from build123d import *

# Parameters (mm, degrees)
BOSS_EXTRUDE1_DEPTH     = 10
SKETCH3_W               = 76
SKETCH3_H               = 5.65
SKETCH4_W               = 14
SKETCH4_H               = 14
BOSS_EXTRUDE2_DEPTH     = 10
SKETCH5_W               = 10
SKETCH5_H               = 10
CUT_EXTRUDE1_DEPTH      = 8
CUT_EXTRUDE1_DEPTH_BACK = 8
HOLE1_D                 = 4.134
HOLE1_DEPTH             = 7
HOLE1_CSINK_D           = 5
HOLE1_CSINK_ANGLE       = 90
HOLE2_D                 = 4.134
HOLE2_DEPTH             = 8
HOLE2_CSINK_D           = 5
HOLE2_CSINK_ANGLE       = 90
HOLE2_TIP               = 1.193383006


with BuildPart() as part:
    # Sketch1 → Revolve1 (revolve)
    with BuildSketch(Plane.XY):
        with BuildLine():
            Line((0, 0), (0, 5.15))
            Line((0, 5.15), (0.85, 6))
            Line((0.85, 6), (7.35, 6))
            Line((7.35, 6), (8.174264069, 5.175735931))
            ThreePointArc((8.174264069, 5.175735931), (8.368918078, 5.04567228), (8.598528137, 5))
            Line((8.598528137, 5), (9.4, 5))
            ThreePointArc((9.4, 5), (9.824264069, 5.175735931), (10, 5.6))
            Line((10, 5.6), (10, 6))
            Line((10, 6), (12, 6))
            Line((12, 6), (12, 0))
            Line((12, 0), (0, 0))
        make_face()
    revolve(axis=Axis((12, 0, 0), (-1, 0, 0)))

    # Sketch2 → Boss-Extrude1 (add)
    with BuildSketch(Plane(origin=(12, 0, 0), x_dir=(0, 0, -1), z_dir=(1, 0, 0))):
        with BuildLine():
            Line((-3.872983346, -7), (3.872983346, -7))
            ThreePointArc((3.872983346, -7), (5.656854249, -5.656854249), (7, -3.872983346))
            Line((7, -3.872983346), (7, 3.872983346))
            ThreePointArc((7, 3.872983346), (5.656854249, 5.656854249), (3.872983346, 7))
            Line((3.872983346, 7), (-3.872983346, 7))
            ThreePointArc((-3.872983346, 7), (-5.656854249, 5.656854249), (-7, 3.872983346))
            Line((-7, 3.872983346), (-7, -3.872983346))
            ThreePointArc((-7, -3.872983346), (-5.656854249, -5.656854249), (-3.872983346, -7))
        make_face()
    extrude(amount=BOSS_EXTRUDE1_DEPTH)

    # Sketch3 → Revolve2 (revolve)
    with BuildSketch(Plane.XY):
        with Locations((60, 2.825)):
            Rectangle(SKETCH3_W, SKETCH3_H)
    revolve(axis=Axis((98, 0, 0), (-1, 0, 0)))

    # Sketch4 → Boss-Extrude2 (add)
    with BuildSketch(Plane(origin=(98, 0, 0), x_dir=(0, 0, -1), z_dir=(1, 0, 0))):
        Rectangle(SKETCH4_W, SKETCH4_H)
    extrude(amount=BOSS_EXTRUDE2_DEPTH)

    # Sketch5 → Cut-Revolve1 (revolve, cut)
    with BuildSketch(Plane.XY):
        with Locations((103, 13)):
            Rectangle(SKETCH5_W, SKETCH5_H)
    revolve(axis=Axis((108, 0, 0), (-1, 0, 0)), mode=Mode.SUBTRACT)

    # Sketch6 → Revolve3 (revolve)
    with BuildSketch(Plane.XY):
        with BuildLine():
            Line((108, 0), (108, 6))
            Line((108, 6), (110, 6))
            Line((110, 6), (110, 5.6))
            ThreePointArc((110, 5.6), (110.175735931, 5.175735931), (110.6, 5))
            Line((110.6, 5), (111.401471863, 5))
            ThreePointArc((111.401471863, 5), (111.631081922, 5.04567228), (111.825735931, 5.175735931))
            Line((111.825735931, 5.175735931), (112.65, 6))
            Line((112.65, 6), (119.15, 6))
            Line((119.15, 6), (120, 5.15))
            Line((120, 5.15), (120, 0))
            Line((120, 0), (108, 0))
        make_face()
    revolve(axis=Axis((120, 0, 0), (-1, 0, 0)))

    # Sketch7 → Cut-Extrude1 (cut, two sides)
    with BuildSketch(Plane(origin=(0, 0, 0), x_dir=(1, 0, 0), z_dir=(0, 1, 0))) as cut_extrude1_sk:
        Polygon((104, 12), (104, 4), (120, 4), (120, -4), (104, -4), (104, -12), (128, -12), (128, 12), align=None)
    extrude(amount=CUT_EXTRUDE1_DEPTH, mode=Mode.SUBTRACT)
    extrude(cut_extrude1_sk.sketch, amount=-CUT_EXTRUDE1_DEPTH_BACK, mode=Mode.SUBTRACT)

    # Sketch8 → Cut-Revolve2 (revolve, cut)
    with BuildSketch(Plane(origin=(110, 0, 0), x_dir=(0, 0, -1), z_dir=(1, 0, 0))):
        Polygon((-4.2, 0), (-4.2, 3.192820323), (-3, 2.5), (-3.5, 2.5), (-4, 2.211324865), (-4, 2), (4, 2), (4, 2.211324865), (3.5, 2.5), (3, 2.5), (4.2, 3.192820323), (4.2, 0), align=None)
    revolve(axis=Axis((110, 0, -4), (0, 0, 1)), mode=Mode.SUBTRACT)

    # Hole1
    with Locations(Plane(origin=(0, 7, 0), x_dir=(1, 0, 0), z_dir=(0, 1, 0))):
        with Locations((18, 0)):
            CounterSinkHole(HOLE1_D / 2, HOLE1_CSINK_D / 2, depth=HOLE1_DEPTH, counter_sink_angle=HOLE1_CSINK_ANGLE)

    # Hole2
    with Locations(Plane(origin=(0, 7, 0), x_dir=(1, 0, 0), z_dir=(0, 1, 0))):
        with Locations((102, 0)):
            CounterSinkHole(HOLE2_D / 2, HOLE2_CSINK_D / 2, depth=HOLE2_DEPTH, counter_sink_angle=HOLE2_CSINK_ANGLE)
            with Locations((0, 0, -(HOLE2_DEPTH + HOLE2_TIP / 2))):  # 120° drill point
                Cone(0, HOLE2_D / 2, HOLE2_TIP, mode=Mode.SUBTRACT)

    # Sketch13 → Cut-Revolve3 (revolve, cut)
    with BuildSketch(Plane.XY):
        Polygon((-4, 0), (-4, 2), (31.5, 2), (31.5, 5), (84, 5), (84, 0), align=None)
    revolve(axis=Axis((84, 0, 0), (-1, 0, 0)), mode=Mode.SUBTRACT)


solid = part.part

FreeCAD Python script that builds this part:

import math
import FreeCAD as App
import Part
import Sketcher
from FreeCAD import Vector
Q = App.Units.Quantity


def add_polygon(sketch, points):
    """Adds a closed chain of lines whose ends are joined by coincident constraints."""
    first, n = sketch.GeometryCount, len(points)
    for a, b in zip(points, points[1:] + points[:1]):
        sketch.addGeometry(Part.LineSegment(App.Vector(*a, 0), App.Vector(*b, 0)), False)
    for i in range(n):
        sketch.addConstraint(Sketcher.Constraint("Coincident", first + i, 2, first + (i + 1) % n, 1))

doc = App.newDocument("Part")
body = doc.addObject("PartDesign::Body", "Body")

# Sketch on XY plane
sketch1 = body.newObject("Sketcher::SketchObject", "Sketch")
sketch1.AttachmentSupport = (doc.getObject("XY_Plane"), [""])
sketch1.MapMode = "FlatFace"
sketch1.addGeometry([
    Part.LineSegment(Vector(0, 5.15, 0), Vector(0, 0, 0)),  # 0
    Part.LineSegment(Vector(0, 0, 0), Vector(12, 0, 0)),  # 1
    Part.LineSegment(Vector(12, 0, 0), Vector(12, 6, 0)),  # 2
    Part.LineSegment(Vector(12, 6, 0), Vector(10, 6, 0)),  # 3
    Part.LineSegment(Vector(10, 6, 0), Vector(10, 5.6, 0)),  # 4
    Part.ArcOfCircle(Part.Circle(Vector(9.4, 5.6, 0), Vector(0, 0, 1), 0.6), math.radians(-90), math.radians(0)),  # 5
    Part.LineSegment(Vector(9.4, 5, 0), Vector(8.598528, 5, 0)),  # 6
    Part.ArcOfCircle(Part.Circle(Vector(8.598528, 5.6, 0), Vector(0, 0, 1), 0.6), math.radians(-135), math.radians(-90)),  # 7
    Part.LineSegment(Vector(8.174264, 5.175736, 0), Vector(7.35, 6, 0)),  # 8
    Part.LineSegment(Vector(7.35, 6, 0), Vector(0.85, 6, 0)),  # 9
    Part.LineSegment(Vector(0.85, 6, 0), Vector(0, 5.15, 0)),  # 10
], False)
sketch1.addConstraint([
    Sketcher.Constraint("Coincident", 0, 2, 1, 1),
    Sketcher.Constraint("Coincident", 1, 2, 2, 1),
    Sketcher.Constraint("Coincident", 2, 2, 3, 1),
    Sketcher.Constraint("Coincident", 3, 2, 4, 1),
    Sketcher.Constraint("Tangent", 4, 2, 5, 2),
    Sketcher.Constraint("Tangent", 5, 1, 6, 1),
    Sketcher.Constraint("Tangent", 6, 2, 7, 2),
    Sketcher.Constraint("Tangent", 7, 1, 8, 1),
    Sketcher.Constraint("Coincident", 8, 2, 9, 1),
    Sketcher.Constraint("Coincident", 9, 2, 10, 1),
    Sketcher.Constraint("Coincident", 10, 2, 0, 1),
    Sketcher.Constraint("Vertical", 0),
    Sketcher.Constraint("Horizontal", 1),
    Sketcher.Constraint("Vertical", 2),
    Sketcher.Constraint("Horizontal", 3),
    Sketcher.Constraint("Vertical", 4),
    Sketcher.Constraint("Horizontal", 6),
    Sketcher.Constraint("Horizontal", 9),
    Sketcher.Constraint("Coincident", 0, 2, -1, 1),
    Sketcher.Constraint("Equal", 5, 7),
    Sketcher.Constraint("Perpendicular", 8, 10),
    Sketcher.Constraint("Horizontal", 3, 2, 8, 2),
    Sketcher.Constraint("Radius", 5, Q("0.6 mm")),
    Sketcher.Constraint("DistanceX", 1, 1, 1, 2, Q("12 mm")),
    Sketcher.Constraint("DistanceX", 3, 2, 3, 1, Q("2 mm")),
    Sketcher.Constraint("DistanceY", 2, 1, 2, 2, Q("6 mm")),
    Sketcher.Constraint("Angle", 8, Q("135 deg")),
    Sketcher.Constraint("DistanceX", 9, 2, 9, 1, Q("6.5 mm")),
    Sketcher.Constraint("DistanceY", 4, 2, 4, 1, Q("0.4 mm")),
    Sketcher.Constraint("DistanceY", 0, 2, 0, 1, Q("5.15 mm")),
])
revolution = body.newObject("PartDesign::Revolution", "Revolution")
revolution.Profile = sketch1
revolution.ReferenceAxis = (sketch1, ["H_Axis"])
revolution.Angle = 360

# Sketch on YZ plane
sketch2 = body.newObject("Sketcher::SketchObject", "Sketch001")
sketch2.AttachmentSupport = (doc.getObject("YZ_Plane"), [""])
sketch2.MapMode = "FlatFace"
sketch2.AttachmentOffset = App.Placement(Vector(0, 0, 12), App.Rotation())
sketch2.addGeometry([
    Part.LineSegment(Vector(-7, 3.872983, 0), Vector(-7, -3.872983, 0)),  # 0
    Part.ArcOfCircle(Part.Circle(Vector(0, 0, 0), Vector(0, 0, 1), 8), math.radians(-151.044976), math.radians(-118.955024)),  # 1
    Part.LineSegment(Vector(-3.872983, -7, 0), Vector(3.872983, -7, 0)),  # 2
    Part.ArcOfCircle(Part.Circle(Vector(0, 0, 0), Vector(0, 0, 1), 8), math.radians(-61.044976), math.radians(-28.955024)),  # 3
    Part.LineSegment(Vector(7, -3.872983, 0), Vector(7, 3.872983, 0)),  # 4
    Part.ArcOfCircle(Part.Circle(Vector(0, 0, 0), Vector(0, 0, 1), 8), math.radians(28.955024), math.radians(61.044976)),  # 5
    Part.LineSegment(Vector(3.872983, 7, 0), Vector(-3.872983, 7, 0)),  # 6
    Part.ArcOfCircle(Part.Circle(Vector(0, 0, 0), Vector(0, 0, 1), 8), math.radians(118.955024), math.radians(151.044976)),  # 7
], False)
sketch2.addConstraint([
    Sketcher.Constraint("Coincident", 0, 2, 1, 1),
    Sketcher.Constraint("Coincident", 1, 2, 2, 1),
    Sketcher.Constraint("Coincident", 2, 2, 3, 1),
    Sketcher.Constraint("Coincident", 3, 2, 4, 1),
    Sketcher.Constraint("Coincident", 4, 2, 5, 1),
    Sketcher.Constraint("Coincident", 5, 2, 6, 1),
    Sketcher.Constraint("Coincident", 6, 2, 7, 1),
    Sketcher.Constraint("Coincident", 7, 2, 0, 1),
    Sketcher.Constraint("Vertical", 0),
    Sketcher.Constraint("Horizontal", 2),
    Sketcher.Constraint("Vertical", 4),
    Sketcher.Constraint("Horizontal", 6),
    Sketcher.Constraint("Coincident", 1, 3, -1, 1),
    Sketcher.Constraint("Coincident", 3, 3, -1, 1),
    Sketcher.Constraint("Coincident", 5, 3, -1, 1),
    Sketcher.Constraint("Coincident", 7, 3, -1, 1),
    Sketcher.Constraint("Equal", 1, 3),
    Sketcher.Constraint("Equal", 3, 5),
    Sketcher.Constraint("Equal", 5, 7),
    Sketcher.Constraint("Horizontal", 0, 2, 3, 2),
    Sketcher.Constraint("Vertical", 2, 2, 5, 2),
    Sketcher.Constraint("Equal", 6, 0),
    Sketcher.Constraint("Radius", 1, Q("8 mm")),
    Sketcher.Constraint("DistanceX", 0, 2, -1, 1, Q("7 mm")),
])
pad1 = body.newObject("PartDesign::Pad", "Pad")
pad1.Profile = sketch2
pad1.Length = 10

# Sketch on XY plane
sketch3 = body.newObject("Sketcher::SketchObject", "Sketch002")
sketch3.AttachmentSupport = (doc.getObject("XY_Plane"), [""])
sketch3.MapMode = "FlatFace"
add_polygon(sketch3, [(22, 5.65), (22, 0), (98, 0), (98, 5.65)])  # lines 0-3
sketch3.addConstraint([
    Sketcher.Constraint("Vertical", 0),
    Sketcher.Constraint("Horizontal", 1),
    Sketcher.Constraint("Vertical", 2),
    Sketcher.Constraint("Horizontal", 3),
    Sketcher.Constraint("PointOnObject", 0, 2, -1),
    Sketcher.Constraint("DistanceX", 1, 1, 1, 2, Q("76 mm")),
    Sketcher.Constraint("DistanceX", -1, 1, 0, 2, Q("22 mm")),
    Sketcher.Constraint("DistanceY", 0, 2, 0, 1, Q("5.65 mm")),
])
revolution2 = body.newObject("PartDesign::Revolution", "Revolution001")
revolution2.Profile = sketch3
revolution2.ReferenceAxis = (sketch3, ["H_Axis"])
revolution2.Angle = 360

# Sketch on YZ plane
sketch4 = body.newObject("Sketcher::SketchObject", "Sketch003")
sketch4.AttachmentSupport = (doc.getObject("YZ_Plane"), [""])
sketch4.MapMode = "FlatFace"
sketch4.AttachmentOffset = App.Placement(Vector(0, 0, 98), App.Rotation())
add_polygon(sketch4, [(7, 7), (-7, 7), (-7, -7), (7, -7)])  # lines 0-3
sketch4.addConstraint([
    Sketcher.Constraint("Horizontal", 0),
    Sketcher.Constraint("Vertical", 1),
    Sketcher.Constraint("Horizontal", 2),
    Sketcher.Constraint("Vertical", 3),
    Sketcher.Constraint("Symmetric", 0, 2, 2, 2, -1, 1),
    Sketcher.Constraint("Equal", 2, 1),
    Sketcher.Constraint("DistanceX", 0, 2, 0, 1, Q("14 mm")),
])
pad2 = body.newObject("PartDesign::Pad", "Pad001")
pad2.Profile = sketch4
pad2.Length = 10

# Sketch on XY plane
sketch5 = body.newObject("Sketcher::SketchObject", "Sketch004")
sketch5.AttachmentSupport = (doc.getObject("XY_Plane"), [""])
sketch5.MapMode = "FlatFace"
add_polygon(sketch5, [(98, 18), (98, 8), (108, 8), (108, 18)])  # lines 0-3
sketch5.addConstraint([
    Sketcher.Constraint("Vertical", 0),
    Sketcher.Constraint("Horizontal", 1),
    Sketcher.Constraint("Vertical", 2),
    Sketcher.Constraint("Horizontal", 3),
    Sketcher.Constraint("Equal", 3, 0),
    Sketcher.Constraint("DistanceX", 1, 1, 1, 2, Q("10 mm")),
    Sketcher.Constraint("DistanceX", -1, 1, 0, 2, Q("98 mm")),
    Sketcher.Constraint("DistanceY", -1, 1, 0, 2, Q("8 mm")),
])
groove = body.newObject("PartDesign::Groove", "Groove")
groove.Profile = sketch5
groove.ReferenceAxis = (sketch5, ["H_Axis"])
groove.Angle = 360

# Sketch on XY plane
sketch6 = body.newObject("Sketcher::SketchObject", "Sketch005")
sketch6.AttachmentSupport = (doc.getObject("XY_Plane"), [""])
sketch6.MapMode = "FlatFace"
sketch6.addGeometry([
    Part.LineSegment(Vector(108, 6, 0), Vector(108, 0, 0)),  # 0
    Part.LineSegment(Vector(108, 0, 0), Vector(120, 0, 0)),  # 1
    Part.LineSegment(Vector(120, 0, 0), Vector(120, 5.15, 0)),  # 2
    Part.LineSegment(Vector(120, 5.15, 0), Vector(119.15, 6, 0)),  # 3
    Part.LineSegment(Vector(119.15, 6, 0), Vector(112.65, 6, 0)),  # 4
    Part.LineSegment(Vector(112.65, 6, 0), Vector(111.825736, 5.175736, 0)),  # 5
    Part.ArcOfCircle(Part.Circle(Vector(111.401472, 5.6, 0), Vector(0, 0, 1), 0.6), math.radians(-90), math.radians(-45)),  # 6
    Part.LineSegment(Vector(111.401472, 5, 0), Vector(110.6, 5, 0)),  # 7
    Part.ArcOfCircle(Part.Circle(Vector(110.6, 5.6, 0), Vector(0, 0, 1), 0.6), math.radians(180), math.radians(270)),  # 8
    Part.LineSegment(Vector(110, 5.6, 0), Vector(110, 6, 0)),  # 9
    Part.LineSegment(Vector(110, 6, 0), Vector(108, 6, 0)),  # 10
], False)
sketch6.addConstraint([
    Sketcher.Constraint("Coincident", 0, 2, 1, 1),
    Sketcher.Constraint("Coincident", 1, 2, 2, 1),
    Sketcher.Constraint("Coincident", 2, 2, 3, 1),
    Sketcher.Constraint("Coincident", 3, 2, 4, 1),
    Sketcher.Constraint("Coincident", 4, 2, 5, 1),
    Sketcher.Constraint("Tangent", 5, 2, 6, 2),
    Sketcher.Constraint("Tangent", 6, 1, 7, 1),
    Sketcher.Constraint("Tangent", 7, 2, 8, 2),
    Sketcher.Constraint("Tangent", 8, 1, 9, 1),
    Sketcher.Constraint("Coincident", 9, 2, 10, 1),
    Sketcher.Constraint("Coincident", 10, 2, 0, 1),
    Sketcher.Constraint("Vertical", 0),
    Sketcher.Constraint("Horizontal", 1),
    Sketcher.Constraint("Vertical", 2),
    Sketcher.Constraint("Horizontal", 4),
    Sketcher.Constraint("Horizontal", 7),
    Sketcher.Constraint("Vertical", 9),
    Sketcher.Constraint("Horizontal", 10),
    Sketcher.Constraint("Equal", 6, 8),
    Sketcher.Constraint("PointOnObject", 0, 2, -1),
    Sketcher.Constraint("Perpendicular", 3, 5),
    Sketcher.Constraint("Horizontal", 4, 2, 9, 2),
    Sketcher.Constraint("Radius", 6, Q("0.6 mm")),
    Sketcher.Constraint("DistanceX", 1, 1, 1, 2, Q("12 mm")),
    Sketcher.Constraint("DistanceX", 10, 2, 10, 1, Q("2 mm")),
    Sketcher.Constraint("DistanceY", 0, 2, 0, 1, Q("6 mm")),
    Sketcher.Constraint("Angle", 3, Q("135 deg")),
    Sketcher.Constraint("DistanceX", 4, 2, 4, 1, Q("6.5 mm")),
    Sketcher.Constraint("DistanceY", 9, 1, 9, 2, Q("0.4 mm")),
    Sketcher.Constraint("DistanceX", -1, 1, 0, 2, Q("108 mm")),
    Sketcher.Constraint("DistanceY", 2, 1, 2, 2, Q("5.15 mm")),
])
revolution3 = body.newObject("PartDesign::Revolution", "Revolution002")
revolution3.Profile = sketch6
revolution3.ReferenceAxis = (sketch6, ["H_Axis"])
revolution3.Angle = 360

# Sketch on XZ plane
sketch7 = body.newObject("Sketcher::SketchObject", "Sketch006")
sketch7.AttachmentSupport = (doc.getObject("XZ_Plane"), [""])
sketch7.MapMode = "FlatFace"
add_polygon(sketch7, [(104, -12), (104, -4), (120, -4), (120, 4), (104, 4), (104, 12), (128, 12), (128, -12)])  # lines 0-7
sketch7.addConstraint([
    Sketcher.Constraint("Vertical", 0),
    Sketcher.Constraint("Horizontal", 1),
    Sketcher.Constraint("Vertical", 2),
    Sketcher.Constraint("Horizontal", 3),
    Sketcher.Constraint("Vertical", 4),
    Sketcher.Constraint("Horizontal", 5),
    Sketcher.Constraint("Vertical", 6),
    Sketcher.Constraint("Horizontal", 7),
    Sketcher.Constraint("Symmetric", 0, 2, 3, 2, -1),
    Sketcher.Constraint("Equal", 0, 2),
    Sketcher.Constraint("Equal", 2, 4),
    Sketcher.Constraint("Equal", 7, 6),
    Sketcher.Constraint("DistanceX", 1, 1, 1, 2, Q("16 mm")),
    Sketcher.Constraint("DistanceX", 5, 1, 5, 2, Q("24 mm")),
    Sketcher.Constraint("DistanceX", -1, 1, 0, 2, Q("104 mm")),
])
pocket1 = body.newObject("PartDesign::Pocket", "Pocket")
pocket1.Profile = sketch7
pocket1.Type = "ThroughAll"
pocket1.Midplane = True

# Sketch on YZ plane
sketch8 = body.newObject("Sketcher::SketchObject", "Sketch007")
sketch8.AttachmentSupport = (doc.getObject("YZ_Plane"), [""])
sketch8.MapMode = "FlatFace"
sketch8.AttachmentOffset = App.Placement(Vector(0, 0, 110), App.Rotation())
add_polygon(sketch8, [(3.19282, 4.2), (0, 4.2), (0, -4.2), (3.19282, -4.2), (2.5, -3), (2.5, -3.5), (2.211325, -4), (2, -4), (2, 4), (2.211325, 4), (2.5, 3.5), (2.5, 3)])  # lines 0-11
sketch8.addConstraint([
    Sketcher.Constraint("Horizontal", 0),
    Sketcher.Constraint("Vertical", 1),
    Sketcher.Constraint("Horizontal", 2),
    Sketcher.Constraint("Vertical", 4),
    Sketcher.Constraint("Horizontal", 6),
    Sketcher.Constraint("Vertical", 7),
    Sketcher.Constraint("Horizontal", 8),
    Sketcher.Constraint("Vertical", 10),
    Sketcher.Constraint("Symmetric", 0, 2, 1, 2, -1, 1),
    Sketcher.Constraint("Symmetric", 5, 2, 8, 2, -1),
    Sketcher.Constraint("Symmetric", 4, 2, 9, 2, -1),
    Sketcher.Constraint("Parallel", 3, 9),
    Sketcher.Constraint("Parallel", 5, 11),
    Sketcher.Constraint("Vertical", 2, 2, 11, 2),
    Sketcher.Constraint("DistanceY", 7, 1, 7, 2, Q("8 mm")),
    Sketcher.Constraint("Angle", 3, Q("120 deg")),
    Sketcher.Constraint("DistanceY", 1, 2, 1, 1, Q("8.4 mm")),
    Sketcher.Constraint("DistanceY", 4, 2, 4, 1, Q("0.5 mm")),
    Sketcher.Constraint("DistanceY", 3, 2, -1, 1, Q("3 mm")),
    Sketcher.Constraint("DistanceX", -1, 1, 6, 2, Q("2 mm")),
    Sketcher.Constraint("DistanceX", -1, 1, 3, 2, Q("2.5 mm")),
])
groove2 = body.newObject("PartDesign::Groove", "Groove001")
groove2.Profile = sketch8
groove2.ReferenceAxis = (sketch8, ["V_Axis"])
groove2.Angle = 360

# Sketch on XZ plane
sketch9 = body.newObject("Sketcher::SketchObject", "Sketch008")
sketch9.AttachmentSupport = (doc.getObject("XZ_Plane"), [""])
sketch9.MapMode = "FlatFace"
sketch9.AttachmentOffset = App.Placement(Vector(0, 0, -7), App.Rotation())
sketch9.addGeometry(Part.Circle(Vector(18, 0, 0), Vector(0, 0, 1), 2.067), False)
sketch9.addConstraint([
    Sketcher.Constraint("PointOnObject", 0, 3, -1),
    Sketcher.Constraint("Diameter", 0, Q("4.134 mm")),
    Sketcher.Constraint("DistanceX", -1, 1, 0, 3, Q("18 mm")),
])
doc.recompute()
hole = body.newObject("PartDesign::Hole", "Hole")
hole.Profile = sketch9
hole.ThreadType = "None"
hole.Diameter = 4.134
hole.DepthType = "Dimension"
hole.Depth = 7
hole.DrillPoint = "Flat"
hole.HoleCutType = "Countersink"
hole.HoleCutDiameter = 5
hole.HoleCutCountersinkAngle = 90
hole.Reversed = True

# Sketch on XZ plane
sketch10 = body.newObject("Sketcher::SketchObject", "Sketch009")
sketch10.AttachmentSupport = (doc.getObject("XZ_Plane"), [""])
sketch10.MapMode = "FlatFace"
sketch10.AttachmentOffset = App.Placement(Vector(0, 0, -7), App.Rotation())
sketch10.addGeometry(Part.Circle(Vector(102, 0, 0), Vector(0, 0, 1), 2.067), False)
sketch10.addConstraint([
    Sketcher.Constraint("PointOnObject", 0, 3, -1),
    Sketcher.Constraint("Diameter", 0, Q("4.134 mm")),
    Sketcher.Constraint("DistanceX", -1, 1, 0, 3, Q("102 mm")),
])
doc.recompute()
hole2 = body.newObject("PartDesign::Hole", "Hole001")
hole2.Profile = sketch10
hole2.ThreadType = "None"
hole2.Diameter = 4.134
hole2.DepthType = "Dimension"
hole2.Depth = 8
hole2.DrillPoint = "Angled"
hole2.DrillPointAngle = 120
hole2.HoleCutType = "Countersink"
hole2.HoleCutDiameter = 5
hole2.HoleCutCountersinkAngle = 90
hole2.Reversed = True

# Sketch on XY plane
sketch11 = body.newObject("Sketcher::SketchObject", "Sketch010")
sketch11.AttachmentSupport = (doc.getObject("XY_Plane"), [""])
sketch11.MapMode = "FlatFace"
add_polygon(sketch11, [(-4, 2), (-4, 0), (84, 0), (84, 5), (31.5, 5), (31.5, 2)])  # lines 0-5
sketch11.addConstraint([
    Sketcher.Constraint("Vertical", 0),
    Sketcher.Constraint("Horizontal", 1),
    Sketcher.Constraint("Vertical", 2),
    Sketcher.Constraint("Horizontal", 3),
    Sketcher.Constraint("Vertical", 4),
    Sketcher.Constraint("Horizontal", 5),
    Sketcher.Constraint("PointOnObject", 0, 2, -1),
    Sketcher.Constraint("DistanceX", 1, 1, 1, 2, Q("88 mm")),
    Sketcher.Constraint("DistanceY", 0, 2, 0, 1, Q("2 mm")),
    Sketcher.Constraint("DistanceY", 2, 1, 2, 2, Q("5 mm")),
    Sketcher.Constraint("DistanceX", 3, 2, 3, 1, Q("52.5 mm")),
    Sketcher.Constraint("DistanceX", 0, 2, -1, 1, Q("4 mm")),
])
groove3 = body.newObject("PartDesign::Groove", "Groove002")
groove3.Profile = sketch11
groove3.ReferenceAxis = (sketch11, ["H_Axis"])
groove3.Angle = 360

doc.recompute()
